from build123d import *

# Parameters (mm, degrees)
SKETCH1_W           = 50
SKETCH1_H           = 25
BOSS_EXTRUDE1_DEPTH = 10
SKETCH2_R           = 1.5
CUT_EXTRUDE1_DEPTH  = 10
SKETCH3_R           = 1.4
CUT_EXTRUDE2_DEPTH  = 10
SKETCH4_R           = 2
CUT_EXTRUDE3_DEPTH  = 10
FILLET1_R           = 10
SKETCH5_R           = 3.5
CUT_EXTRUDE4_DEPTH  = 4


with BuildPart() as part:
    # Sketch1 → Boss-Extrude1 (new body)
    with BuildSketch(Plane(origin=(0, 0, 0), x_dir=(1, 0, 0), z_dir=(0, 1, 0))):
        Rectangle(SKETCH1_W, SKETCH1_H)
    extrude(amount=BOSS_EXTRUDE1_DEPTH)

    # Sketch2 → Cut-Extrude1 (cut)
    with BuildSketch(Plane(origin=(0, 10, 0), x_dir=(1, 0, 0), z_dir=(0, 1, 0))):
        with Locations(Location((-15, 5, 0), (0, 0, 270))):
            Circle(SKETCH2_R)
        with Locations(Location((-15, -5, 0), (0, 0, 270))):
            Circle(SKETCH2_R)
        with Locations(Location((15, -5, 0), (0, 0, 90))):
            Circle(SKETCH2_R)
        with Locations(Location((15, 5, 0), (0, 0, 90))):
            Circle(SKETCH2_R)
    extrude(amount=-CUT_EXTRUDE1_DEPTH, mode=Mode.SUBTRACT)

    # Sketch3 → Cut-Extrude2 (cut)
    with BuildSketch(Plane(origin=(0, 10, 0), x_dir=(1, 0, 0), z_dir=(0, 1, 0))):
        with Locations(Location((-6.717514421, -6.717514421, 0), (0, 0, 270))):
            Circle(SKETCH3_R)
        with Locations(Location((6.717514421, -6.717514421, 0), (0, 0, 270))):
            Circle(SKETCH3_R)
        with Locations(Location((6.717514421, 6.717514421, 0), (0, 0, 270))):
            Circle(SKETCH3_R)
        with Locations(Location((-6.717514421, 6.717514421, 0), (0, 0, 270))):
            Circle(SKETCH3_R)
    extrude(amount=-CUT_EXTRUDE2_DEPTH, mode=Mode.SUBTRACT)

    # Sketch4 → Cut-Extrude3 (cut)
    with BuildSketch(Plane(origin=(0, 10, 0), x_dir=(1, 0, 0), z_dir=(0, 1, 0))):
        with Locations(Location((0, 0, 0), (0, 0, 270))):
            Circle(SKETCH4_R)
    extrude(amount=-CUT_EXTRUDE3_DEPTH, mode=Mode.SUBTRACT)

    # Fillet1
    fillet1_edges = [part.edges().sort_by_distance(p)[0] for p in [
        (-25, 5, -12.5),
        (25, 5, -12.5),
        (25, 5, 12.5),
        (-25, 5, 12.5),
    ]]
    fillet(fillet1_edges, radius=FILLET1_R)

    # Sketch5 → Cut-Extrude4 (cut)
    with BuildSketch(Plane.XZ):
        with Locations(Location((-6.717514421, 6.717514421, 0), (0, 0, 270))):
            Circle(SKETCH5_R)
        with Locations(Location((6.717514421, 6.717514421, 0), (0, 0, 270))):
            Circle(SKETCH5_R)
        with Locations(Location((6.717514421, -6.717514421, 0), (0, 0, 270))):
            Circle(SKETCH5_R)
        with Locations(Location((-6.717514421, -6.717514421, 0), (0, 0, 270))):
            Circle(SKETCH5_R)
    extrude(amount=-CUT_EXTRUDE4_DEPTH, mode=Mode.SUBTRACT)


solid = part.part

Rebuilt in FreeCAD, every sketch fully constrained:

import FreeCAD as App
import Part
import Sketcher

V = App.Vector


def edges_at(feature, points):
    """Names of the edges that pass closest to the given points."""
    edges = feature.Shape.Edges
    near = lambda p: min(range(len(edges)), key=lambda i: edges[i].distToShape(Part.Vertex(*p))[0])
    return sorted({f"Edge{near(p) + 1}" for p in points})

doc = App.newDocument("Part")
body = doc.addObject("PartDesign::Body", "Body")

# Sketch on XZ plane
sketch1 = body.newObject("Sketcher::SketchObject", "Sketch")
sketch1.AttachmentSupport = (doc.getObject("XZ_Plane"), [""])
sketch1.MapMode = "FlatFace"
sketch1.addGeometry([
    Part.LineSegment(V(-25, -12, 0), V(-25, 12, 0)),
    Part.LineSegment(V(-25, 12, 0), V(25, 12, 0)),
    Part.LineSegment(V(25, 12, 0), V(25, -12, 0)),
    Part.LineSegment(V(25, -12, 0), V(-25, -12, 0)),
], False)
sketch1.addConstraint([
    Sketcher.Constraint("Coincident", 0, 2, 1, 1),
    Sketcher.Constraint("Coincident", 1, 2, 2, 1),
    Sketcher.Constraint("Coincident", 2, 2, 3, 1),
    Sketcher.Constraint("Coincident", 3, 2, 0, 1),
    Sketcher.Constraint("Vertical", 0),
    Sketcher.Constraint("Horizontal", 1),
    Sketcher.Constraint("Vertical", 2),
    Sketcher.Constraint("Horizontal", 3),
    Sketcher.Constraint("Symmetric", 0, 2, 2, 2, -1, 1),
    Sketcher.Constraint("DistanceX", 1, 1, 1, 2, 50.0),
    Sketcher.Constraint("DistanceY", 0, 1, 0, 2, 25.0),
])
pad1 = body.newObject("PartDesign::Pad", "Pad")
pad1.Profile = sketch1
pad1.Length = 10
pad1.Reversed = True

# Sketch on XZ plane
sketch2 = body.newObject("Sketcher::SketchObject", "Sketch001")
sketch2.AttachmentSupport = (doc.getObject("XZ_Plane"), [""])
sketch2.MapMode = "FlatFace"
sketch2.AttachmentOffset = App.Placement(V(0, 0, -10), App.Rotation())
sketch2.addGeometry([
    Part.Circle(V(-15, -5, 0), V(0, 0, 1), 1.5),
    Part.Circle(V(-15, 5, 0), V(0, 0, 1), 1.5),
    Part.Circle(V(15, 5, 0), V(0, 0, 1), 1.5),
    Part.Circle(V(15, -5, 0), V(0, 0, 1), 1.5),
], False)
sketch2.addConstraint([
    Sketcher.Constraint("Equal", 0, 1),
    Sketcher.Constraint("Equal", 1, 2),
    Sketcher.Constraint("Equal", 2, 3),
    Sketcher.Constraint("Symmetric", 0, 3, 2, 3, -1, 1),
    Sketcher.Constraint("Symmetric", 1, 3, 3, 3, -1, 1),
    Sketcher.Constraint("Symmetric", 1, 3, 2, 3, -2),
    Sketcher.Constraint("Diameter", 0, 3.0),
    Sketcher.Constraint("DistanceX", 0, 3, -1, 1, 15.0),
    Sketcher.Constraint("DistanceY", 0, 3, -1, 1, 5.0),
])
pocket1 = body.newObject("PartDesign::Pocket", "Pocket")
pocket1.Profile = sketch2
pocket1.Length = 10
pocket1.Reversed = True

# Sketch on XZ plane
sketch3 = body.newObject("Sketcher::SketchObject", "Sketch002")
sketch3.AttachmentSupport = (doc.getObject("XZ_Plane"), [""])
sketch3.MapMode = "FlatFace"
sketch3.AttachmentOffset = App.Placement(V(0, 0, -10), App.Rotation())
sketch3.addGeometry([
    Part.Circle(V(-6.7, 6.7, 0), V(0, 0, 1), 1.4),
    Part.Circle(V(6.7, 6.7, 0), V(0, 0, 1), 1.4),
    Part.Circle(V(6.7, -6.7, 0), V(0, 0, 1), 1.4),
    Part.Circle(V(-6.7, -6.7, 0), V(0, 0, 1), 1.4),
], False)
sketch3.addConstraint([
    Sketcher.Constraint("Equal", 0, 1),
    Sketcher.Constraint("Equal", 1, 2),
    Sketcher.Constraint("Equal", 2, 3),
    Sketcher.Constraint("Symmetric", 0, 3, 2, 3, -1, 1),
    Sketcher.Constraint("Symmetric", 1, 3, 3, 3, -1, 1),
    Sketcher.Constraint("Symmetric", 0, 3, 1, 3, -2),
    Sketcher.Constraint("Diameter", 0, 2.8),
    Sketcher.Constraint("DistanceX", 0, 3, 1, 3, 13.435029),
    Sketcher.Constraint("DistanceY", 2, 3, 1, 3, 13.435029),
])
pocket2 = body.newObject("PartDesign::Pocket", "Pocket001")
pocket2.Profile = sketch3
pocket2.Length = 10
pocket2.Reversed = True

# Sketch on XZ plane
sketch4 = body.newObject("Sketcher::SketchObject", "Sketch003")
sketch4.AttachmentSupport = (doc.getObject("XZ_Plane"), [""])
sketch4.MapMode = "FlatFace"
sketch4.AttachmentOffset = App.Placement(V(0, 0, -10), App.Rotation())
sketch4.addGeometry(Part.Circle(V(0, 0, 0), V(0, 0, 1), 2), False)
sketch4.addConstraint([
    Sketcher.Constraint("Coincident", 0, 3, -1, 1),
    Sketcher.Constraint("Diameter", 0, 4.0),
])
pocket3 = body.newObject("PartDesign::Pocket", "Pocket002")
pocket3.Profile = sketch4
pocket3.Length = 10
pocket3.Reversed = True
doc.recompute()

fillet = body.newObject("PartDesign::Fillet", "Fillet")
fillet.Base = (pocket3, edges_at(pocket3, [
    (-25, 5, -12.5),
    (25, 5, -12.5),
    (25, 5, 12.5),
    (-25, 5, 12.5),
]))
fillet.Radius = 10

# Sketch on XZ plane
sketch5 = body.newObject("Sketcher::SketchObject", "Sketch004")
sketch5.AttachmentSupport = (doc.getObject("XZ_Plane"), [""])
sketch5.MapMode = "FlatFace"
sketch5.addGeometry([
    Part.Circle(V(-6.7, 6.7, 0), V(0, 0, 1), 3.5),
    Part.Circle(V(6.7, 6.7, 0), V(0, 0, 1), 3.5),
    Part.Circle(V(6.7, -6.7, 0), V(0, 0, 1), 3.5),
    Part.Circle(V(-6.7, -6.7, 0), V(0, 0, 1), 3.5),
], False)
sketch5.addConstraint([
    Sketcher.Constraint("Equal", 0, 1),
    Sketcher.Constraint("Equal", 1, 2),
    Sketcher.Constraint("Equal", 2, 3),
    Sketcher.Constraint("Symmetric", 0, 3, 2, 3, -1, 1),
    Sketcher.Constraint("Symmetric", 1, 3, 3, 3, -1, 1),
    Sketcher.Constraint("Symmetric", 0, 3, 1, 3, -2),
    Sketcher.Constraint("Diameter", 0, 7.0),
    Sketcher.Constraint("DistanceX", 0, 3, 1, 3, 13.435029),
    Sketcher.Constraint("DistanceY", 2, 3, 1, 3, 13.435029),
])
pocket4 = body.newObject("PartDesign::Pocket", "Pocket003")
pocket4.Profile = sketch5
pocket4.Length = 4

doc.recompute()
